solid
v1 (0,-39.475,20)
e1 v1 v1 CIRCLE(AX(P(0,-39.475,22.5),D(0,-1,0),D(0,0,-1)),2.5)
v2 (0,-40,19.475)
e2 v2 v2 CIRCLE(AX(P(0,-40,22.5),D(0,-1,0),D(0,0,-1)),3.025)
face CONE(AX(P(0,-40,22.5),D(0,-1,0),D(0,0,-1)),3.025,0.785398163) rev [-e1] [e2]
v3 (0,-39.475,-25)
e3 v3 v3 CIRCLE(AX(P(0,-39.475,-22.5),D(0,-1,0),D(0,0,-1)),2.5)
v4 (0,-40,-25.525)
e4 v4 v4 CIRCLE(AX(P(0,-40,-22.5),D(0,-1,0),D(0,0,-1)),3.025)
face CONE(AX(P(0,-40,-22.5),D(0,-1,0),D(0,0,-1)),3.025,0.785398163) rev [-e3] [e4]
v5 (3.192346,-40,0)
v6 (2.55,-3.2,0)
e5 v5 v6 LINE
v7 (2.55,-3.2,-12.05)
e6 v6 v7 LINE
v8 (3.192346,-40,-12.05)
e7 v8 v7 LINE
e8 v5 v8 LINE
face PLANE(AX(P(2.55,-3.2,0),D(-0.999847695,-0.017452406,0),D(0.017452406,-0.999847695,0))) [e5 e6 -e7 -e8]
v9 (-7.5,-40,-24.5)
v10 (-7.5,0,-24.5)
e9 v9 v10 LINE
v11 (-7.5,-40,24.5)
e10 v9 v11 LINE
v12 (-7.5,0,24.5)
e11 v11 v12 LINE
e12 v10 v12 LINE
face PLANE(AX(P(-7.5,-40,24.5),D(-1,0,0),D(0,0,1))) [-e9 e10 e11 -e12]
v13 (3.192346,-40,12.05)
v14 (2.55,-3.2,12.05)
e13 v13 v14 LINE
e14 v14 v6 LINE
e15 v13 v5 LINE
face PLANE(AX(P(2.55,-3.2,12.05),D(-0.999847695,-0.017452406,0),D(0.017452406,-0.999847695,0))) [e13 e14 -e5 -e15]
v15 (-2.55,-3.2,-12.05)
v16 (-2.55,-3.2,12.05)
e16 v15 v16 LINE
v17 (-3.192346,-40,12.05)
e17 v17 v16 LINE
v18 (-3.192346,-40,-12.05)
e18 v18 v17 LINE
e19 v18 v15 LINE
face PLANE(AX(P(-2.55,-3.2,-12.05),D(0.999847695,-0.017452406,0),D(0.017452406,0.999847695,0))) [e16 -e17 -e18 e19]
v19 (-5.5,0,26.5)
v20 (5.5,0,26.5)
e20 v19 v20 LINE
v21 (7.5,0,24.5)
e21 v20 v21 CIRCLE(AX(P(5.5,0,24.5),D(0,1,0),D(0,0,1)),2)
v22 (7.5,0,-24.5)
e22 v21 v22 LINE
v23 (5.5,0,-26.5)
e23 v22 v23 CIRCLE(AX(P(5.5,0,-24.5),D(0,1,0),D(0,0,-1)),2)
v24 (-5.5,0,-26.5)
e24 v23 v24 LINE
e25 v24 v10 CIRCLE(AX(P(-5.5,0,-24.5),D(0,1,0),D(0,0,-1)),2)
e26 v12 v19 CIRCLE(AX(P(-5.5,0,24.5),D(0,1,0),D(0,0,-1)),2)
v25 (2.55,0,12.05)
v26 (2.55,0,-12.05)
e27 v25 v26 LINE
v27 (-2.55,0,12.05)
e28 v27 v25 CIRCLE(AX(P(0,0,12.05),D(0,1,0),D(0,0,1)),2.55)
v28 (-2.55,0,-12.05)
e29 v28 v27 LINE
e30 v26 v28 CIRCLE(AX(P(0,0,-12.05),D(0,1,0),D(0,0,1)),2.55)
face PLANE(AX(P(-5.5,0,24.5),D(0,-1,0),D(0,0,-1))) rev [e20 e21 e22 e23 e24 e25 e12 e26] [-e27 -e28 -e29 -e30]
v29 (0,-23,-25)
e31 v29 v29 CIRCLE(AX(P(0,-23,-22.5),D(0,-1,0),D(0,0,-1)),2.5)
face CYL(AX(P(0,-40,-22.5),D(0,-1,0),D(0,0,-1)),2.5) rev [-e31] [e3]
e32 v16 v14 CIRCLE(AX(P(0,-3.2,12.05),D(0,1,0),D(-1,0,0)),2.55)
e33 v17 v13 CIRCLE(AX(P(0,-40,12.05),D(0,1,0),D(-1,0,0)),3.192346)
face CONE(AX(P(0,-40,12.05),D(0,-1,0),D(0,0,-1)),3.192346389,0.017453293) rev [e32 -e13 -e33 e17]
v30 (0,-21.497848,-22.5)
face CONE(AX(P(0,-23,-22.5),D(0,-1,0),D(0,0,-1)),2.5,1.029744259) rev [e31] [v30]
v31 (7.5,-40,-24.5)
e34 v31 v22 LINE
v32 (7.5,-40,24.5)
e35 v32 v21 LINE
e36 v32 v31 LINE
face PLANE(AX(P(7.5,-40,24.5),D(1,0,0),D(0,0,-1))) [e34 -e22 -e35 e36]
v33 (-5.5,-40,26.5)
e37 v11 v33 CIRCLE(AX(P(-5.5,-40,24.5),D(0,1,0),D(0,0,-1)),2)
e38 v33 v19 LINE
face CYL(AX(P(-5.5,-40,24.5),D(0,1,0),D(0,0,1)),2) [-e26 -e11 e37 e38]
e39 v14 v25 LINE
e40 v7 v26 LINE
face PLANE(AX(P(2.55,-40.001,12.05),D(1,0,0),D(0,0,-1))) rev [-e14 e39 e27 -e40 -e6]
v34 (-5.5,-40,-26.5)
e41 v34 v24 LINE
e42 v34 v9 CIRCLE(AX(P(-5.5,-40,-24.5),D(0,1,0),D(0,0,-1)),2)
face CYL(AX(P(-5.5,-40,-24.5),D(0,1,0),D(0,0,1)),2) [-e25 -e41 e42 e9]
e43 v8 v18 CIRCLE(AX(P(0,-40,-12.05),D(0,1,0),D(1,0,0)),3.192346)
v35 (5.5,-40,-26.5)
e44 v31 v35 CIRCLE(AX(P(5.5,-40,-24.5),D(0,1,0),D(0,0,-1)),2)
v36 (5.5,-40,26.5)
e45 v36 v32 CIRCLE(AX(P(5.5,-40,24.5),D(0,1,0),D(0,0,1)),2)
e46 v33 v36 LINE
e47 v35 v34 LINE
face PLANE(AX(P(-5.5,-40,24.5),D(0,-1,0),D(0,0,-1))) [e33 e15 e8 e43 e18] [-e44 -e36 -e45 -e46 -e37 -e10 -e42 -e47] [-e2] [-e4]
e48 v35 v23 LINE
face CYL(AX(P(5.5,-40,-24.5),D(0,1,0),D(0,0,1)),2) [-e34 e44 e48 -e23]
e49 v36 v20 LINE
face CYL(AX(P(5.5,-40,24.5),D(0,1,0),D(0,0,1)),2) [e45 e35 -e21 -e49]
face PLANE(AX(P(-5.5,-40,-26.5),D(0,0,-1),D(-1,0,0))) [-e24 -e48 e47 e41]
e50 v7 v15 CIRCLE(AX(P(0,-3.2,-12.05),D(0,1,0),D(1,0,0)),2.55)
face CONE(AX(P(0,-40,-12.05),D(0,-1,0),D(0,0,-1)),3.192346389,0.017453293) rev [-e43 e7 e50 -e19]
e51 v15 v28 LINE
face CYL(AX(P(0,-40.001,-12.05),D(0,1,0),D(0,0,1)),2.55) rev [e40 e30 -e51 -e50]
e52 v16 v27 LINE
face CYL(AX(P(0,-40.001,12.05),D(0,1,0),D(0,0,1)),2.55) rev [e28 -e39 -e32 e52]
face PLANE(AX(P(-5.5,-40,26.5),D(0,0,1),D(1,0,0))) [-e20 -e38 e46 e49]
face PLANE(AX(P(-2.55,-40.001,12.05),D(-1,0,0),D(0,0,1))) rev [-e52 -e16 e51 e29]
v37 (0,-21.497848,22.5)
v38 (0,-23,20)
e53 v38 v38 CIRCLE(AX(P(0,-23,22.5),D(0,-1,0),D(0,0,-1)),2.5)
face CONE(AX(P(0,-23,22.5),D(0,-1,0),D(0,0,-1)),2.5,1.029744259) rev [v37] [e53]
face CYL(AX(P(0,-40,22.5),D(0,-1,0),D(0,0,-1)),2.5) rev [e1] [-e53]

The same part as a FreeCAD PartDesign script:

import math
import FreeCAD as App
import Part
import Sketcher

V = App.Vector
Q = App.Units.Quantity

doc = App.newDocument("Part")
body = doc.addObject("PartDesign::Body", "Body")

# Sketch on XZ plane
sketch1 = body.newObject("Sketcher::SketchObject", "Sketch")
sketch1.AttachmentSupport = (doc.getObject("XZ_Plane"), [""])
sketch1.MapMode = "FlatFace"
sketch1.addGeometry([
    Part.LineSegment(V(-5.5, 26.5, 0), V(5.5, 26.5, 0)),  # 0
    Part.ArcOfCircle(Part.Circle(V(5.5, 24.5, 0), V(0, 0, 1), 2), math.radians(0), math.radians(90)),  # 1
    Part.LineSegment(V(7.5, 24.5, 0), V(7.5, -24.5, 0)),  # 2
    Part.ArcOfCircle(Part.Circle(V(5.5, -24.5, 0), V(0, 0, 1), 2), math.radians(-90), math.radians(0)),  # 3
    Part.LineSegment(V(5.5, -26.5, 0), V(-5.5, -26.5, 0)),  # 4
    Part.ArcOfCircle(Part.Circle(V(-5.5, -24.5, 0), V(0, 0, 1), 2), math.radians(-180), math.radians(-90)),  # 5
    Part.LineSegment(V(-7.5, -24.5, 0), V(-7.5, 24.5, 0)),  # 6
    Part.ArcOfCircle(Part.Circle(V(-5.5, 24.5, 0), V(0, 0, 1), 2), math.radians(90), math.radians(180)),  # 7
], False)
sketch1.addConstraint([
    Sketcher.Constraint("Tangent", 0, 2, 1, 2),
    Sketcher.Constraint("Tangent", 1, 1, 2, 1),
    Sketcher.Constraint("Tangent", 2, 2, 3, 2),
    Sketcher.Constraint("Tangent", 3, 1, 4, 1),
    Sketcher.Constraint("Tangent", 4, 2, 5, 2),
    Sketcher.Constraint("Tangent", 5, 1, 6, 1),
    Sketcher.Constraint("Tangent", 6, 2, 7, 2),
    Sketcher.Constraint("Tangent", 7, 1, 0, 1),
    Sketcher.Constraint("Horizontal", 0),
    Sketcher.Constraint("Vertical", 2),
    Sketcher.Constraint("Horizontal", 4),
    Sketcher.Constraint("Vertical", 6),
    Sketcher.Constraint("Equal", 1, 3),
    Sketcher.Constraint("Equal", 3, 5),
    Sketcher.Constraint("Equal", 5, 7),
    Sketcher.Constraint("Symmetric", 1, 3, 5, 3, -1, 1),
    Sketcher.Constraint("Radius", 1, Q("2 mm")),
    Sketcher.Constraint("DistanceX", 0, 1, 0, 2, Q("11 mm")),
    Sketcher.Constraint("DistanceY", 2, 2, 2, 1, Q("49 mm")),
])
pad1 = body.newObject("PartDesign::Pad", "Pad")
pad1.Profile = sketch1
pad1.Length = 40

# Sketch on XZ plane
sketch2 = body.newObject("Sketcher::SketchObject", "Sketch001")
sketch2.AttachmentSupport = (doc.getObject("XZ_Plane"), [""])
sketch2.MapMode = "FlatFace"
sketch2.addGeometry([
    Part.LineSegment(V(-2.5, -12.1, 0), V(-2.5, 12.1, 0)),
    Part.ArcOfCircle(Part.Circle(V(0, 12.1, 0), V(0, 0, 1), 2.5), math.radians(0), math.radians(180)),
    Part.LineSegment(V(2.5, 12.1, 0), V(2.5, -12.1, 0)),
    Part.ArcOfCircle(Part.Circle(V(0, -12.1, 0), V(0, 0, 1), 2.5), math.radians(180), math.radians(360)),
], False)
sketch2.addConstraint([
    Sketcher.Constraint("Tangent", 0, 2, 1, 2),
    Sketcher.Constraint("Tangent", 1, 1, 2, 1),
    Sketcher.Constraint("Tangent", 2, 2, 3, 2),
    Sketcher.Constraint("Tangent", 3, 1, 0, 1),
    Sketcher.Constraint("Vertical", 0),
    Sketcher.Constraint("Vertical", 2),
    Sketcher.Constraint("Symmetric", 1, 3, 3, 3, -1, 1),
    Sketcher.Constraint("Radius", 1, Q("2.55 mm")),
    Sketcher.Constraint("DistanceY", 0, 1, 0, 2, Q("24.1 mm")),
])
pocket1 = body.newObject("PartDesign::Pocket", "Pocket")
pocket1.Profile = sketch2
pocket1.Type = "UpToFirst"
pocket1.Reversed = True

# Sketch on XY plane
sketch3 = body.newObject("Sketcher::SketchObject", "Sketch002")
sketch3.AttachmentSupport = (doc.getObject("XY_Plane"), [""])
sketch3.MapMode = "FlatFace"
sketch3.addGeometry([
    Part.LineSegment(V(3.2, -40, 0), V(2.5, -3.2, 0)),
    Part.LineSegment(V(2.5, -3.2, 0), V(2.5, -40, 0)),
    Part.LineSegment(V(2.5, -40, 0), V(3.2, -40, 0)),
], False)
sketch3.addConstraint([
    Sketcher.Constraint("Coincident", 0, 2, 1, 1),
    Sketcher.Constraint("Coincident", 1, 2, 2, 1),
    Sketcher.Constraint("Coincident", 2, 2, 0, 1),
    Sketcher.Constraint("Vertical", 1),
    Sketcher.Constraint("Horizontal", 2),
    Sketcher.Constraint("Angle", 0, Q("91 deg")),
    Sketcher.Constraint("DistanceY", 1, 2, 1, 1, Q("36.8 mm")),
    Sketcher.Constraint("DistanceY", 1, 2, -1, 1, Q("40 mm")),
    Sketcher.Constraint("DistanceX", -1, 1, 0, 2, Q("2.55 mm")),
])

# Sketch on XZ plane
sketch4 = body.newObject("Sketcher::SketchObject", "Sketch003")
sketch4.AttachmentSupport = (doc.getObject("XZ_Plane"), [""])
sketch4.MapMode = "FlatFace"
sketch4.addGeometry([
    Part.LineSegment(V(-2.5, -12.1, 0), V(-2.5, 12.1, 0)),
    Part.ArcOfCircle(Part.Circle(V(0, 12.1, 0), V(0, 0, 1), 2.5), math.radians(0), math.radians(180)),
    Part.LineSegment(V(2.5, 12.1, 0), V(2.5, -12.1, 0)),
    Part.ArcOfCircle(Part.Circle(V(0, -12.1, 0), V(0, 0, 1), 2.5), math.radians(180), math.radians(360)),
], False)
sketch4.addConstraint([
    Sketcher.Constraint("Tangent", 0, 2, 1, 2),
    Sketcher.Constraint("Tangent", 1, 1, 2, 1),
    Sketcher.Constraint("Tangent", 2, 2, 3, 2),
    Sketcher.Constraint("Tangent", 3, 1, 0, 1),
    Sketcher.Constraint("Vertical", 0),
    Sketcher.Constraint("Vertical", 2),
    Sketcher.Constraint("Symmetric", 1, 3, 3, 3, -1, 1),
    Sketcher.Constraint("Radius", 1, Q("2.55 mm")),
    Sketcher.Constraint("DistanceY", 0, 1, 0, 2, Q("24.1 mm")),
])
doc.recompute()

subtractivepipe = body.newObject("PartDesign::SubtractivePipe", "SubtractivePipe")
subtractivepipe.Profile = sketch3
subtractivepipe.Spine = (sketch4, ["Edge1", "Edge2", "Edge3", "Edge4"])

# Sketch on XZ plane
sketch5 = body.newObject("Sketcher::SketchObject", "Sketch004")
sketch5.AttachmentSupport = (doc.getObject("XZ_Plane"), [""])
sketch5.MapMode = "FlatFace"
sketch5.AttachmentOffset = App.Placement(V(0, 0, 40), App.Rotation())
sketch5.addGeometry([
    Part.Circle(V(0, -22.5, 0), V(0, 0, 1), 2.5),
    Part.Circle(V(0, 22.5, 0), V(0, 0, 1), 2.5),
], False)
sketch5.addConstraint([
    Sketcher.Constraint("Equal", 0, 1),
    Sketcher.Constraint("Symmetric", 0, 3, 1, 3, -1, 1),
    Sketcher.Constraint("PointOnObject", 0, 3, -2),
    Sketcher.Constraint("Diameter", 0, Q("5 mm")),
    Sketcher.Constraint("DistanceY", 0, 3, 1, 3, Q("45 mm")),
])
doc.recompute()
hole = body.newObject("PartDesign::Hole", "Hole")
hole.Profile = sketch5
hole.ThreadType = "None"
hole.Diameter = 5
hole.DepthType = "Dimension"
hole.Depth = 17
hole.DrillPoint = "Angled"
hole.DrillPointAngle = 118
hole.HoleCutType = "Countersink"
hole.HoleCutDiameter = 6.05
hole.HoleCutCountersinkAngle = 90

doc.recompute()
